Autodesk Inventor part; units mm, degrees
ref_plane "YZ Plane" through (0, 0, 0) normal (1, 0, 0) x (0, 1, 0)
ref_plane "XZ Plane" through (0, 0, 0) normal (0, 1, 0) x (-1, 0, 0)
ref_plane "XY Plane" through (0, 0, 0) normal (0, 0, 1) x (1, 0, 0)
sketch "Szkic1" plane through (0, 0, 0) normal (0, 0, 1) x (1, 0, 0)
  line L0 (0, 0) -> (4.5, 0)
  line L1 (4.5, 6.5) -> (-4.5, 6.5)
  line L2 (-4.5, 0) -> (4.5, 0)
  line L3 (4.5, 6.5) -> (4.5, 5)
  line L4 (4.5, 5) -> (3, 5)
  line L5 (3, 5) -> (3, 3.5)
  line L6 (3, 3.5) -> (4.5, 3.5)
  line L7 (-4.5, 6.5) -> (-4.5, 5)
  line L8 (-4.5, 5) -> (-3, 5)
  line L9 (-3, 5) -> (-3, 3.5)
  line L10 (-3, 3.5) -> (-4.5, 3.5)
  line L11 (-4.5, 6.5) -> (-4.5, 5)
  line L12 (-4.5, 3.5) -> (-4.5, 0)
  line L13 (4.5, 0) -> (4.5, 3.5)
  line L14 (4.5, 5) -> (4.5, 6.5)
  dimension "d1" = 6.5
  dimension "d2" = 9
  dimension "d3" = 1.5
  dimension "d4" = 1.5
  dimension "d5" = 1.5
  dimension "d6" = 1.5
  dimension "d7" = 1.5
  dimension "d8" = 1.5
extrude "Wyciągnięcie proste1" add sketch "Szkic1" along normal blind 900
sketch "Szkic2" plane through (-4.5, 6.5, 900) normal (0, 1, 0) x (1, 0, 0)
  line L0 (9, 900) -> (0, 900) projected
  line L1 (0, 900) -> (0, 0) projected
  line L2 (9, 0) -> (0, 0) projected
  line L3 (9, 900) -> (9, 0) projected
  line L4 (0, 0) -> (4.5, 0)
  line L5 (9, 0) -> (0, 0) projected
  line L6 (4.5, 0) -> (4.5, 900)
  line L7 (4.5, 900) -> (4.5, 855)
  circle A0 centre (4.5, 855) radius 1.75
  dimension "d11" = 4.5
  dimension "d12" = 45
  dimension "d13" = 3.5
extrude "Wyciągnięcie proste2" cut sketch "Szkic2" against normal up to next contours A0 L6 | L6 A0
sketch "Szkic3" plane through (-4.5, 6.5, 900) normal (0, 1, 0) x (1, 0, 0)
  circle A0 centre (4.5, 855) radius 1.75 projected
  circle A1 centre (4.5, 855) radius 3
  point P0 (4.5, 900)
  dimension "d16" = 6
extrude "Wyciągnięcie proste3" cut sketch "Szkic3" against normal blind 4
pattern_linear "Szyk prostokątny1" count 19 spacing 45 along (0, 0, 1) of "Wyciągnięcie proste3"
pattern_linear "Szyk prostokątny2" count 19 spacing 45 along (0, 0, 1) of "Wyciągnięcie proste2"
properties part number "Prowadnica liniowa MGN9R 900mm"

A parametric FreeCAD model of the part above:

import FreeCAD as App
import Part
import Sketcher

V = App.Vector
Q = App.Units.Quantity


def add_polygon(sketch, points):
    """Adds a closed chain of lines whose ends are joined by coincident constraints."""
    first, n = sketch.GeometryCount, len(points)
    for a, b in zip(points, points[1:] + points[:1]):
        sketch.addGeometry(Part.LineSegment(App.Vector(*a, 0), App.Vector(*b, 0)), False)
    for i in range(n):
        sketch.addConstraint(Sketcher.Constraint("Coincident", first + i, 2, first + (i + 1) % n, 1))

doc = App.newDocument("Part")
params = doc.addObject("Spreadsheet::Sheet", "Params")
for row, (alias, value) in enumerate([
    ("sketch1_width", "9 mm"),
    ("sketch1_width2", "1.5 mm"),
    ("pad1_length", "900 mm"),
    ("sketch2_diameter", "3.5 mm"),
    ("sketch3_diameter", "6 mm"),
    ("sketch3_diameter2", "3.5 mm"),
    ("pocket2_length", "4 mm"),
    ("linearpattern_pitch", "45 mm"),
    ("linearpattern2_pitch", "45 mm"),
], start=1):
    params.set(f"A{row}", alias)
    params.set(f"B{row}", "=" + value)
    params.setAlias(f"B{row}", alias)

body = doc.addObject("PartDesign::Body", "Body")

# Sketch on XY plane
sketch1 = body.newObject("Sketcher::SketchObject", "Sketch")
sketch1.AttachmentSupport = (doc.getObject("XY_Plane"), [""])
sketch1.MapMode = "FlatFace"
add_polygon(sketch1, [(-4.5, 0), (4.5, 0), (4.5, 3.5), (3, 3.5), (3, 5), (4.5, 5), (4.5, 6.5), (-4.5, 6.5), (-4.5, 5), (-3, 5), (-3, 3.5), (-4.5, 3.5)])  # lines 0-11
sketch1.addConstraint(Sketcher.Constraint("Horizontal", 0))
sketch1.addConstraint(Sketcher.Constraint("Vertical", 1))
sketch1.addConstraint(Sketcher.Constraint("Horizontal", 2))
sketch1.addConstraint(Sketcher.Constraint("Vertical", 3))
sketch1.addConstraint(Sketcher.Constraint("Horizontal", 4))
sketch1.addConstraint(Sketcher.Constraint("Vertical", 5))
sketch1.addConstraint(Sketcher.Constraint("Horizontal", 6))
sketch1.addConstraint(Sketcher.Constraint("Vertical", 7))
sketch1.addConstraint(Sketcher.Constraint("Horizontal", 8))
sketch1.addConstraint(Sketcher.Constraint("Vertical", 9))
sketch1.addConstraint(Sketcher.Constraint("Horizontal", 10))
sketch1.addConstraint(Sketcher.Constraint("Vertical", 11))
sketch1.addConstraint(Sketcher.Constraint("Symmetric", 0, 2, 11, 2, -1, 1))
sketch1.addConstraint(Sketcher.Constraint("Symmetric", 4, 2, 7, 2, -2))
sketch1.addConstraint(Sketcher.Constraint("Symmetric", 2, 2, 9, 2, -2))
sketch1.addConstraint(Sketcher.Constraint("Vertical", 1, 2, 4, 2))
sketch1.addConstraint(Sketcher.Constraint("Equal", 10, 3))
sketch1.addConstraint(Sketcher.Constraint("Equal", 3, 5))
sketch1.addConstraint(Sketcher.Constraint("DistanceX", 0, 1, 0, 2, Q("9 mm")))
sketch1.addConstraint(Sketcher.Constraint("DistanceX", 2, 2, 2, 1, Q("1.5 mm")))
sketch1.addConstraint(Sketcher.Constraint("DistanceY", -1, 1, 5, 2, Q("6.5 mm")))
sketch1.setExpression("Constraints[30]", "Params.sketch1_width")
sketch1.setExpression("Constraints[31]", "Params.sketch1_width2")
pad1 = body.newObject("PartDesign::Pad", "Pad")
pad1.Profile = sketch1
pad1.setExpression("Length", "Params.pad1_length")

# Sketch on XZ plane
sketch2 = body.newObject("Sketcher::SketchObject", "Sketch001")
sketch2.AttachmentSupport = (doc.getObject("XZ_Plane"), [""])
sketch2.MapMode = "FlatFace"
sketch2.AttachmentOffset = App.Placement(V(0, 0, -6.5), App.Rotation())
sketch2.addGeometry(Part.Circle(V(0, 45, 0), V(0, 0, 1), 1.8), False)
sketch2.addConstraint(Sketcher.Constraint("PointOnObject", 0, 3, -2))
sketch2.addConstraint(Sketcher.Constraint("Diameter", 0, Q("3.5 mm")))
sketch2.addConstraint(Sketcher.Constraint("DistanceY", -1, 1, 0, 3, Q("45 mm")))
sketch2.setExpression("Constraints[1]", "Params.sketch2_diameter")
pocket1 = body.newObject("PartDesign::Pocket", "Pocket")
pocket1.Profile = sketch2
pocket1.Type = "UpToFirst"
pocket1.Reversed = True

# Sketch on XZ plane
sketch3 = body.newObject("Sketcher::SketchObject", "Sketch002")
sketch3.AttachmentSupport = (doc.getObject("XZ_Plane"), [""])
sketch3.MapMode = "FlatFace"
sketch3.AttachmentOffset = App.Placement(V(0, 0, -6.5), App.Rotation())
sketch3.addGeometry(Part.Circle(V(0, 45, 0), V(0, 0, 1), 3), False)
sketch3.addGeometry(Part.Circle(V(0, 45, 0), V(0, 0, 1), 1.8), False)
sketch3.addConstraint(Sketcher.Constraint("Coincident", 1, 3, 0, 3))
sketch3.addConstraint(Sketcher.Constraint("PointOnObject", 0, 3, -2))
sketch3.addConstraint(Sketcher.Constraint("Diameter", 0, Q("6 mm")))
sketch3.addConstraint(Sketcher.Constraint("Diameter", 1, Q("3.5 mm")))
sketch3.addConstraint(Sketcher.Constraint("DistanceY", -1, 1, 0, 3, Q("45 mm")))
sketch3.setExpression("Constraints[2]", "Params.sketch3_diameter")
sketch3.setExpression("Constraints[3]", "Params.sketch3_diameter2")
pocket2 = body.newObject("PartDesign::Pocket", "Pocket001")
pocket2.Profile = sketch3
pocket2.setExpression("Length", "Params.pocket2_length")
pocket2.Reversed = True
doc.recompute()

linearpattern = body.newObject("PartDesign::LinearPattern", "LinearPattern")
linearpattern.Originals = [pocket2]
linearpattern.Direction = (doc.getObject("Z_Axis"), [""])
linearpattern.Mode = "offset"
linearpattern.setExpression("Offset", "Params.linearpattern_pitch")
linearpattern.Occurrences = 19
body.Tip = linearpattern
doc.recompute()

linearpattern2 = body.newObject("PartDesign::LinearPattern", "LinearPattern001")
linearpattern2.Originals = [pocket1]
linearpattern2.Direction = (doc.getObject("Z_Axis"), [""])
linearpattern2.Mode = "offset"
linearpattern2.setExpression("Offset", "Params.linearpattern2_pitch")
linearpattern2.Occurrences = 19
body.Tip = linearpattern2

doc.recompute()
